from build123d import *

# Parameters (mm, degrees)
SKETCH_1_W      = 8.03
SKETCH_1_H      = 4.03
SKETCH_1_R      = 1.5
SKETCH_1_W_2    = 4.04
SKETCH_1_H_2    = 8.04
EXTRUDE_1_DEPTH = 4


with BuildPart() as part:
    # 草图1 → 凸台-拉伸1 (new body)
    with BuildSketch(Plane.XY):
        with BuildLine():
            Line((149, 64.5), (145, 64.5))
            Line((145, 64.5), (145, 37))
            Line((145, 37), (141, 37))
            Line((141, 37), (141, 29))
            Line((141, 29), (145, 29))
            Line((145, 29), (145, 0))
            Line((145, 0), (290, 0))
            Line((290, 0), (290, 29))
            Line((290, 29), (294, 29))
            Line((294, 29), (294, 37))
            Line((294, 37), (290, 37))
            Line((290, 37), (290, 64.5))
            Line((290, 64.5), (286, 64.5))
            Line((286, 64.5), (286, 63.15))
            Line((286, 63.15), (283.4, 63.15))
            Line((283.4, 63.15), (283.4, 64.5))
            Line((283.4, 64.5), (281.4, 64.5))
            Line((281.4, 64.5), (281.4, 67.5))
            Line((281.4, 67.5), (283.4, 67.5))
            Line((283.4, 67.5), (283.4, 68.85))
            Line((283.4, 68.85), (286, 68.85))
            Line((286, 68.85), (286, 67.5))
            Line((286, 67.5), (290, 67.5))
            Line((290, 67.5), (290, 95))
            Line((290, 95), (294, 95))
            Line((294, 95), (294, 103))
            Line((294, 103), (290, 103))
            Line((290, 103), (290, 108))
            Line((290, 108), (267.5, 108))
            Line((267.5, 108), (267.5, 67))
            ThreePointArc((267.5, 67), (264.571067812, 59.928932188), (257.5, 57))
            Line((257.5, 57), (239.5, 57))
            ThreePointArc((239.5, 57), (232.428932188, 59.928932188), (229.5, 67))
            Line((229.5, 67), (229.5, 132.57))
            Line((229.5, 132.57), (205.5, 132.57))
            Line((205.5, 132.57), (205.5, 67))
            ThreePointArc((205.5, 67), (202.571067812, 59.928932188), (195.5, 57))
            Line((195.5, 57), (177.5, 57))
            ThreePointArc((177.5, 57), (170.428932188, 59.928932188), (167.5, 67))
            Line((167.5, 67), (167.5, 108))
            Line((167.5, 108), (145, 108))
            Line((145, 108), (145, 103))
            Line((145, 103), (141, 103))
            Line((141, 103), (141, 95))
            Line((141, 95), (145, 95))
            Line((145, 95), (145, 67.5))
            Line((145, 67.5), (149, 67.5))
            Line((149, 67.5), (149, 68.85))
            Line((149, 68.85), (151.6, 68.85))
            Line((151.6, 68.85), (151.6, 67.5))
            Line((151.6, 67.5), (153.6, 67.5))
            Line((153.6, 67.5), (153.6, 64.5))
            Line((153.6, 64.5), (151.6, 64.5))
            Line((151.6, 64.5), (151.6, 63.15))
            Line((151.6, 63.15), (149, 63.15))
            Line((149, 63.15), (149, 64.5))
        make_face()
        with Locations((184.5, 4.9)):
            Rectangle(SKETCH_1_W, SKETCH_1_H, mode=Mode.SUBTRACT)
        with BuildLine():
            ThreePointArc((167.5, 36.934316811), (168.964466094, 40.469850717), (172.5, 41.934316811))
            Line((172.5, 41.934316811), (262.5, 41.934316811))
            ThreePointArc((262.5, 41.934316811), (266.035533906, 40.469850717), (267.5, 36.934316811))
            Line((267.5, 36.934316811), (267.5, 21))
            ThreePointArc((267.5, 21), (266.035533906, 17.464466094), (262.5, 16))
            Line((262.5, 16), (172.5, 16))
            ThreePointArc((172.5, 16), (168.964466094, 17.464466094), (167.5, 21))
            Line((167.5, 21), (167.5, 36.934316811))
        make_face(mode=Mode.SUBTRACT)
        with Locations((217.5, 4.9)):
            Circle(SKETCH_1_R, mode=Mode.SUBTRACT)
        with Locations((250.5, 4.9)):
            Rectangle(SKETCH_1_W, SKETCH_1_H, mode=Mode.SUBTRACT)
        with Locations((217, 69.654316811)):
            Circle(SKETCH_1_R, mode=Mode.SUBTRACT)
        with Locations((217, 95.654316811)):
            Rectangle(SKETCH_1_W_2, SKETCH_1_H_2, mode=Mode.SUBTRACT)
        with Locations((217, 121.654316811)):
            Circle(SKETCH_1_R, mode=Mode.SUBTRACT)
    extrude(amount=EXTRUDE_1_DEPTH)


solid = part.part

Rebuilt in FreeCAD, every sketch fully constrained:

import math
import FreeCAD as App
import Part
import Sketcher


def add_polygon(sketch, points):
    """Adds a closed chain of lines whose ends are joined by coincident constraints."""
    first, n = sketch.GeometryCount, len(points)
    for a, b in zip(points, points[1:] + points[:1]):
        sketch.addGeometry(Part.LineSegment(App.Vector(*a, 0), App.Vector(*b, 0)), False)
    for i in range(n):
        sketch.addConstraint(Sketcher.Constraint("Coincident", first + i, 2, first + (i + 1) % n, 1))

doc = App.newDocument("Part")
body = doc.addObject("PartDesign::Body", "Body")

# Sketch on XY plane
sketch1 = doc.addObject("Sketcher::SketchObject", "Sketch")
body.addObject(sketch1)
sketch1.AttachmentSupport = (doc.XY_Plane, [""])
sketch1.MapMode = "FlatFace"
sketch1.addGeometry(Part.LineSegment(App.Vector(149, 64.5, 0), App.Vector(145, 64.5, 0)), False)  # 0
sketch1.addGeometry(Part.LineSegment(App.Vector(145, 64.5, 0), App.Vector(145, 37, 0)), False)  # 1
sketch1.addGeometry(Part.LineSegment(App.Vector(145, 37, 0), App.Vector(141, 37, 0)), False)  # 2
sketch1.addGeometry(Part.LineSegment(App.Vector(141, 37, 0), App.Vector(141, 29, 0)), False)  # 3
sketch1.addGeometry(Part.LineSegment(App.Vector(141, 29, 0), App.Vector(145, 29, 0)), False)  # 4
sketch1.addGeometry(Part.LineSegment(App.Vector(145, 29, 0), App.Vector(145, 0, 0)), False)  # 5
sketch1.addGeometry(Part.LineSegment(App.Vector(145, 0, 0), App.Vector(290, 0, 0)), False)  # 6
sketch1.addGeometry(Part.LineSegment(App.Vector(290, 0, 0), App.Vector(290, 29, 0)), False)  # 7
sketch1.addGeometry(Part.LineSegment(App.Vector(290, 29, 0), App.Vector(294, 29, 0)), False)  # 8
sketch1.addGeometry(Part.LineSegment(App.Vector(294, 29, 0), App.Vector(294, 37, 0)), False)  # 9
sketch1.addGeometry(Part.LineSegment(App.Vector(294, 37, 0), App.Vector(290, 37, 0)), False)  # 10
sketch1.addGeometry(Part.LineSegment(App.Vector(290, 37, 0), App.Vector(290, 64.5, 0)), False)  # 11
sketch1.addGeometry(Part.LineSegment(App.Vector(290, 64.5, 0), App.Vector(286, 64.5, 0)), False)  # 12
sketch1.addGeometry(Part.LineSegment(App.Vector(286, 64.5, 0), App.Vector(286, 63.1, 0)), False)  # 13
sketch1.addGeometry(Part.LineSegment(App.Vector(286, 63.1, 0), App.Vector(283.4, 63.1, 0)), False)  # 14
sketch1.addGeometry(Part.LineSegment(App.Vector(283.4, 63.1, 0), App.Vector(283.4, 64.5, 0)), False)  # 15
sketch1.addGeometry(Part.LineSegment(App.Vector(283.4, 64.5, 0), App.Vector(281.4, 64.5, 0)), False)  # 16
sketch1.addGeometry(Part.LineSegment(App.Vector(281.4, 64.5, 0), App.Vector(281.4, 67.5, 0)), False)  # 17
sketch1.addGeometry(Part.LineSegment(App.Vector(281.4, 67.5, 0), App.Vector(283.4, 67.5, 0)), False)  # 18
sketch1.addGeometry(Part.LineSegment(App.Vector(283.4, 67.5, 0), App.Vector(283.4, 68.8, 0)), False)  # 19
sketch1.addGeometry(Part.LineSegment(App.Vector(283.4, 68.8, 0), App.Vector(286, 68.8, 0)), False)  # 20
sketch1.addGeometry(Part.LineSegment(App.Vector(286, 68.8, 0), App.Vector(286, 67.5, 0)), False)  # 21
sketch1.addGeometry(Part.LineSegment(App.Vector(286, 67.5, 0), App.Vector(290, 67.5, 0)), False)  # 22
sketch1.addGeometry(Part.LineSegment(App.Vector(290, 67.5, 0), App.Vector(290, 95, 0)), False)  # 23
sketch1.addGeometry(Part.LineSegment(App.Vector(290, 95, 0), App.Vector(294, 95, 0)), False)  # 24
sketch1.addGeometry(Part.LineSegment(App.Vector(294, 95, 0), App.Vector(294, 103, 0)), False)  # 25
sketch1.addGeometry(Part.LineSegment(App.Vector(294, 103, 0), App.Vector(290, 103, 0)), False)  # 26
sketch1.addGeometry(Part.LineSegment(App.Vector(290, 103, 0), App.Vector(290, 108, 0)), False)  # 27
sketch1.addGeometry(Part.LineSegment(App.Vector(290, 108, 0), App.Vector(267.5, 108, 0)), False)  # 28
sketch1.addGeometry(Part.LineSegment(App.Vector(267.5, 108, 0), App.Vector(267.5, 67, 0)), False)  # 29
sketch1.addGeometry(Part.ArcOfCircle(Part.Circle(App.Vector(257.5, 67, 0), App.Vector(0, 0, 1), 10), math.radians(-90), math.radians(0)), False)  # 30
sketch1.addGeometry(Part.LineSegment(App.Vector(257.5, 57, 0), App.Vector(239.5, 57, 0)), False)  # 31
sketch1.addGeometry(Part.ArcOfCircle(Part.Circle(App.Vector(239.5, 67, 0), App.Vector(0, 0, 1), 10), math.radians(180), math.radians(270)), False)  # 32
sketch1.addGeometry(Part.LineSegment(App.Vector(229.5, 67, 0), App.Vector(229.5, 132.6, 0)), False)  # 33
sketch1.addGeometry(Part.LineSegment(App.Vector(229.5, 132.6, 0), App.Vector(205.5, 132.6, 0)), False)  # 34
sketch1.addGeometry(Part.LineSegment(App.Vector(205.5, 132.6, 0), App.Vector(205.5, 67, 0)), False)  # 35
sketch1.addGeometry(Part.ArcOfCircle(Part.Circle(App.Vector(195.5, 67, 0), App.Vector(0, 0, 1), 10), math.radians(-90), math.radians(0)), False)  # 36
sketch1.addGeometry(Part.LineSegment(App.Vector(195.5, 57, 0), App.Vector(177.5, 57, 0)), False)  # 37
sketch1.addGeometry(Part.ArcOfCircle(Part.Circle(App.Vector(177.5, 67, 0), App.Vector(0, 0, 1), 10), math.radians(180), math.radians(270)), False)  # 38
sketch1.addGeometry(Part.LineSegment(App.Vector(167.5, 67, 0), App.Vector(167.5, 108, 0)), False)  # 39
sketch1.addGeometry(Part.LineSegment(App.Vector(167.5, 108, 0), App.Vector(145, 108, 0)), False)  # 40
sketch1.addGeometry(Part.LineSegment(App.Vector(145, 108, 0), App.Vector(145, 103, 0)), False)  # 41
sketch1.addGeometry(Part.LineSegment(App.Vector(145, 103, 0), App.Vector(141, 103, 0)), False)  # 42
sketch1.addGeometry(Part.LineSegment(App.Vector(141, 103, 0), App.Vector(141, 95, 0)), False)  # 43
sketch1.addGeometry(Part.LineSegment(App.Vector(141, 95, 0), App.Vector(145, 95, 0)), False)  # 44
sketch1.addGeometry(Part.LineSegment(App.Vector(145, 95, 0), App.Vector(145, 67.5, 0)), False)  # 45
sketch1.addGeometry(Part.LineSegment(App.Vector(145, 67.5, 0), App.Vector(149, 67.5, 0)), False)  # 46
sketch1.addGeometry(Part.LineSegment(App.Vector(149, 67.5, 0), App.Vector(149, 68.8, 0)), False)  # 47
sketch1.addGeometry(Part.LineSegment(App.Vector(149, 68.8, 0), App.Vector(151.6, 68.8, 0)), False)  # 48
sketch1.addGeometry(Part.LineSegment(App.Vector(151.6, 68.8, 0), App.Vector(151.6, 67.5, 0)), False)  # 49
sketch1.addGeometry(Part.LineSegment(App.Vector(151.6, 67.5, 0), App.Vector(153.6, 67.5, 0)), False)  # 50
sketch1.addGeometry(Part.LineSegment(App.Vector(153.6, 67.5, 0), App.Vector(153.6, 64.5, 0)), False)  # 51
sketch1.addGeometry(Part.LineSegment(App.Vector(153.6, 64.5, 0), App.Vector(151.6, 64.5, 0)), False)  # 52
sketch1.addGeometry(Part.LineSegment(App.Vector(151.6, 64.5, 0), App.Vector(151.6, 63.1, 0)), False)  # 53
sketch1.addGeometry(Part.LineSegment(App.Vector(151.6, 63.1, 0), App.Vector(149, 63.1, 0)), False)  # 54
sketch1.addGeometry(Part.LineSegment(App.Vector(149, 63.1, 0), App.Vector(149, 64.5, 0)), False)  # 55
add_polygon(sketch1, [(188.5, 2.9), (180.5, 2.9), (180.5, 6.9), (188.5, 6.9)])  # lines 56-59
sketch1.addGeometry(Part.Circle(App.Vector(217.5, 4.9, 0), App.Vector(0, 0, 1), 1.5), False)  # 60
sketch1.addGeometry(Part.LineSegment(App.Vector(167.5, 21, 0), App.Vector(167.5, 36.9, 0)), False)  # 61
sketch1.addGeometry(Part.ArcOfCircle(Part.Circle(App.Vector(172.5, 36.9, 0), App.Vector(0, 0, 1), 5), math.radians(90), math.radians(180)), False)  # 62
sketch1.addGeometry(Part.LineSegment(App.Vector(172.5, 41.9, 0), App.Vector(262.5, 41.9, 0)), False)  # 63
sketch1.addGeometry(Part.ArcOfCircle(Part.Circle(App.Vector(262.5, 36.9, 0), App.Vector(0, 0, 1), 5), math.radians(0), math.radians(90)), False)  # 64
sketch1.addGeometry(Part.LineSegment(App.Vector(267.5, 36.9, 0), App.Vector(267.5, 21, 0)), False)  # 65
sketch1.addGeometry(Part.ArcOfCircle(Part.Circle(App.Vector(262.5, 21, 0), App.Vector(0, 0, 1), 5), math.radians(-90), math.radians(0)), False)  # 66
sketch1.addGeometry(Part.LineSegment(App.Vector(262.5, 16, 0), App.Vector(172.5, 16, 0)), False)  # 67
sketch1.addGeometry(Part.ArcOfCircle(Part.Circle(App.Vector(172.5, 21, 0), App.Vector(0, 0, 1), 5), math.radians(180), math.radians(270)), False)  # 68
add_polygon(sketch1, [(254.5, 2.9), (246.5, 2.9), (246.5, 6.9), (254.5, 6.9)])  # lines 69-72
sketch1.addGeometry(Part.Circle(App.Vector(217, 69.7, 0), App.Vector(0, 0, 1), 1.5), False)  # 73
add_polygon(sketch1, [(219, 91.6), (215, 91.6), (215, 99.7), (219, 99.7)])  # lines 74-77
sketch1.addGeometry(Part.Circle(App.Vector(217, 121.7, 0), App.Vector(0, 0, 1), 1.5), False)  # 78
sketch1.addConstraint([
    Sketcher.Constraint("Coincident", 0, 2, 1, 1),
    Sketcher.Constraint("Coincident", 1, 2, 2, 1),
    Sketcher.Constraint("Coincident", 2, 2, 3, 1),
    Sketcher.Constraint("Coincident", 3, 2, 4, 1),
    Sketcher.Constraint("Coincident", 4, 2, 5, 1),
    Sketcher.Constraint("Coincident", 5, 2, 6, 1),
    Sketcher.Constraint("Coincident", 6, 2, 7, 1),
    Sketcher.Constraint("Coincident", 7, 2, 8, 1),
    Sketcher.Constraint("Coincident", 8, 2, 9, 1),
    Sketcher.Constraint("Coincident", 9, 2, 10, 1),
    Sketcher.Constraint("Coincident", 10, 2, 11, 1),
    Sketcher.Constraint("Coincident", 11, 2, 12, 1),
    Sketcher.Constraint("Coincident", 12, 2, 13, 1),
    Sketcher.Constraint("Coincident", 13, 2, 14, 1),
    Sketcher.Constraint("Coincident", 14, 2, 15, 1),
    Sketcher.Constraint("Coincident", 15, 2, 16, 1),
    Sketcher.Constraint("Coincident", 16, 2, 17, 1),
    Sketcher.Constraint("Coincident", 17, 2, 18, 1),
    Sketcher.Constraint("Coincident", 18, 2, 19, 1),
    Sketcher.Constraint("Coincident", 19, 2, 20, 1),
    Sketcher.Constraint("Coincident", 20, 2, 21, 1),
    Sketcher.Constraint("Coincident", 21, 2, 22, 1),
    Sketcher.Constraint("Coincident", 22, 2, 23, 1),
    Sketcher.Constraint("Coincident", 23, 2, 24, 1),
    Sketcher.Constraint("Coincident", 24, 2, 25, 1),
    Sketcher.Constraint("Coincident", 25, 2, 26, 1),
    Sketcher.Constraint("Coincident", 26, 2, 27, 1),
    Sketcher.Constraint("Coincident", 27, 2, 28, 1),
    Sketcher.Constraint("Coincident", 28, 2, 29, 1),
    Sketcher.Constraint("Tangent", 29, 2, 30, 2),
    Sketcher.Constraint("Tangent", 30, 1, 31, 1),
    Sketcher.Constraint("Tangent", 31, 2, 32, 2),
    Sketcher.Constraint("Tangent", 32, 1, 33, 1),
    Sketcher.Constraint("Coincident", 33, 2, 34, 1),
    Sketcher.Constraint("Coincident", 34, 2, 35, 1),
    Sketcher.Constraint("Tangent", 35, 2, 36, 2),
    Sketcher.Constraint("Tangent", 36, 1, 37, 1),
    Sketcher.Constraint("Tangent", 37, 2, 38, 2),
    Sketcher.Constraint("Tangent", 38, 1, 39, 1),
    Sketcher.Constraint("Coincident", 39, 2, 40, 1),
    Sketcher.Constraint("Coincident", 40, 2, 41, 1),
    Sketcher.Constraint("Coincident", 41, 2, 42, 1),
    Sketcher.Constraint("Coincident", 42, 2, 43, 1),
    Sketcher.Constraint("Coincident", 43, 2, 44, 1),
    Sketcher.Constraint("Coincident", 44, 2, 45, 1),
    Sketcher.Constraint("Coincident", 45, 2, 46, 1),
    Sketcher.Constraint("Coincident", 46, 2, 47, 1),
    Sketcher.Constraint("Coincident", 47, 2, 48, 1),
    Sketcher.Constraint("Coincident", 48, 2, 49, 1),
    Sketcher.Constraint("Coincident", 49, 2, 50, 1),
    Sketcher.Constraint("Coincident", 50, 2, 51, 1),
    Sketcher.Constraint("Coincident", 51, 2, 52, 1),
    Sketcher.Constraint("Coincident", 52, 2, 53, 1),
    Sketcher.Constraint("Coincident", 53, 2, 54, 1),
    Sketcher.Constraint("Coincident", 54, 2, 55, 1),
    Sketcher.Constraint("Coincident", 55, 2, 0, 1),
    Sketcher.Constraint("Tangent", 61, 2, 62, 2),
    Sketcher.Constraint("Tangent", 62, 1, 63, 1),
    Sketcher.Constraint("Tangent", 63, 2, 64, 2),
    Sketcher.Constraint("Tangent", 64, 1, 65, 1),
    Sketcher.Constraint("Tangent", 65, 2, 66, 2),
    Sketcher.Constraint("Tangent", 66, 1, 67, 1),
    Sketcher.Constraint("Tangent", 67, 2, 68, 2),
    Sketcher.Constraint("Tangent", 68, 1, 61, 1),
    Sketcher.Constraint("Horizontal", 0),
    Sketcher.Constraint("Vertical", 1),
    Sketcher.Constraint("Horizontal", 2),
    Sketcher.Constraint("Vertical", 3),
    Sketcher.Constraint("Horizontal", 4),
    Sketcher.Constraint("Vertical", 5),
    Sketcher.Constraint("Horizontal", 6),
    Sketcher.Constraint("Vertical", 7),
    Sketcher.Constraint("Horizontal", 8),
    Sketcher.Constraint("Vertical", 9),
    Sketcher.Constraint("Horizontal", 10),
    Sketcher.Constraint("Vertical", 11),
    Sketcher.Constraint("Horizontal", 12),
    Sketcher.Constraint("Vertical", 13),
    Sketcher.Constraint("Horizontal", 14),
    Sketcher.Constraint("Vertical", 15),
    Sketcher.Constraint("Horizontal", 16),
    Sketcher.Constraint("Vertical", 17),
    Sketcher.Constraint("Horizontal", 18),
    Sketcher.Constraint("Vertical", 19),
    Sketcher.Constraint("Horizontal", 20),
    Sketcher.Constraint("Vertical", 21),
    Sketcher.Constraint("Horizontal", 22),
    Sketcher.Constraint("Vertical", 23),
    Sketcher.Constraint("Horizontal", 24),
    Sketcher.Constraint("Vertical", 25),
    Sketcher.Constraint("Horizontal", 26),
    Sketcher.Constraint("Vertical", 27),
    Sketcher.Constraint("Horizontal", 28),
    Sketcher.Constraint("Vertical", 29),
    Sketcher.Constraint("Horizontal", 31),
    Sketcher.Constraint("Vertical", 33),
    Sketcher.Constraint("Horizontal", 34),
    Sketcher.Constraint("Vertical", 35),
    Sketcher.Constraint("Horizontal", 37),
    Sketcher.Constraint("Vertical", 39),
    Sketcher.Constraint("Horizontal", 40),
    Sketcher.Constraint("Vertical", 41),
    Sketcher.Constraint("Horizontal", 42),
    Sketcher.Constraint("Vertical", 43),
    Sketcher.Constraint("Horizontal", 44),
    Sketcher.Constraint("Vertical", 45),
    Sketcher.Constraint("Horizontal", 46),
    Sketcher.Constraint("Vertical", 47),
    Sketcher.Constraint("Horizontal", 48),
    Sketcher.Constraint("Vertical", 49),
    Sketcher.Constraint("Horizontal", 50),
    Sketcher.Constraint("Vertical", 51),
    Sketcher.Constraint("Horizontal", 52),
    Sketcher.Constraint("Vertical", 53),
    Sketcher.Constraint("Horizontal", 54),
    Sketcher.Constraint("Vertical", 55),
    Sketcher.Constraint("Horizontal", 56),
    Sketcher.Constraint("Vertical", 57),
    Sketcher.Constraint("Horizontal", 58),
    Sketcher.Constraint("Vertical", 59),
    Sketcher.Constraint("Vertical", 61),
    Sketcher.Constraint("Horizontal", 63),
    Sketcher.Constraint("Vertical", 65),
    Sketcher.Constraint("Horizontal", 67),
    Sketcher.Constraint("Horizontal", 69),
    Sketcher.Constraint("Vertical", 70),
    Sketcher.Constraint("Horizontal", 71),
    Sketcher.Constraint("Vertical", 72),
    Sketcher.Constraint("Horizontal", 74),
    Sketcher.Constraint("Vertical", 75),
    Sketcher.Constraint("Horizontal", 76),
    Sketcher.Constraint("Vertical", 77),
    Sketcher.Constraint("Equal", 30, 32),
    Sketcher.Constraint("Equal", 32, 36),
    Sketcher.Constraint("Equal", 36, 38),
    Sketcher.Constraint("Equal", 62, 64),
    Sketcher.Constraint("Equal", 64, 66),
    Sketcher.Constraint("Equal", 66, 68),
    Sketcher.Constraint("Equal", 60, 73),
    Sketcher.Constraint("Equal", 73, 78),
    Sketcher.Constraint("PointOnObject", 5, 2, -1),
    Sketcher.Constraint("Horizontal", 32, 3, 36, 3),
    Sketcher.Constraint("Horizontal", 4, 2, 7, 2),
    Sketcher.Constraint("Horizontal", 2, 2, 9, 2),
    Sketcher.Constraint("Horizontal", 0, 2, 11, 2),
    Sketcher.Constraint("Horizontal", 12, 2, 15, 2),
    Sketcher.Constraint("Horizontal", 18, 2, 21, 2),
    Sketcher.Constraint("Horizontal", 28, 2, 39, 2),
    Sketcher.Constraint("Horizontal", 26, 2, 41, 2),
    Sketcher.Constraint("Horizontal", 24, 2, 43, 2),
    Sketcher.Constraint("Horizontal", 22, 2, 45, 2),
    Sketcher.Constraint("Horizontal", 20, 2, 47, 2),
    Sketcher.Constraint("Horizontal", 46, 2, 49, 2),
    Sketcher.Constraint("Horizontal", 16, 2, 51, 2),
    Sketcher.Constraint("Horizontal", 14, 2, 53, 2),
    Sketcher.Constraint("Horizontal", 59, 2, 69, 2),
    Sketcher.Constraint("Horizontal", 58, 2, 70, 2),
    Sketcher.Constraint("Vertical", 73, 3, 78, 3),
    Sketcher.Constraint("Vertical", 1, 2, 4, 2),
    Sketcher.Constraint("Vertical", 7, 2, 10, 2),
    Sketcher.Constraint("Vertical", 15, 2, 18, 2),
    Sketcher.Constraint("Vertical", 13, 2, 20, 2),
    Sketcher.Constraint("Vertical", 11, 2, 22, 2),
    Sketcher.Constraint("Vertical", 9, 2, 24, 2),
    Sketcher.Constraint("Vertical", 23, 2, 26, 2),
    Sketcher.Constraint("Vertical", 5, 2, 40, 2),
    Sketcher.Constraint("Vertical", 3, 2, 42, 2),
    Sketcher.Constraint("Vertical", 41, 2, 44, 2),
    Sketcher.Constraint("Vertical", 49, 2, 52, 2),
    Sketcher.Constraint("Vertical", 47, 2, 54, 2),
    Sketcher.Constraint("Vertical", 39, 2, 61, 2),
    Sketcher.Constraint("Vertical", 29, 2, 64, 1),
    Sketcher.Constraint("Equal", 0, 2),
    Sketcher.Constraint("Equal", 4, 8),
    Sketcher.Constraint("Equal", 10, 12),
    Sketcher.Constraint("Equal", 31, 37),
    Sketcher.Constraint("Equal", 28, 40),
    Sketcher.Constraint("Equal", 20, 48),
    Sketcher.Constraint("Equal", 18, 50),
    Sketcher.Constraint("Equal", 58, 69),
    Sketcher.Constraint("Equal", 15, 19),
    Sketcher.Constraint("Equal", 11, 23),
    Sketcher.Constraint("Equal", 9, 25),
    Sketcher.Constraint("Diameter", 60, 3.0),
    Sketcher.Constraint("Radius", 30, 10.0),
    Sketcher.Constraint("Radius", 62, 5.0),
    Sketcher.Constraint("DistanceX", 0, 2, 0, 1, 4.0),
    Sketcher.Constraint("DistanceX", 6, 1, 6, 2, 145.0),
    Sketcher.Constraint("DistanceX", 16, 2, 16, 1, 2.0),
    Sketcher.Constraint("DistanceX", 31, 2, 31, 1, 18.0),
    Sketcher.Constraint("DistanceX", 34, 2, 34, 1, 24.0),
    Sketcher.Constraint("DistanceY", 3, 2, 3, 1, 8.0),
    Sketcher.Constraint("DistanceY", 5, 2, 5, 1, 29.0),
    Sketcher.Constraint("DistanceY", 17, 1, 17, 2, 3.0),
    Sketcher.Constraint("DistanceY", 27, 1, 27, 2, 5.0),
    Sketcher.Constraint("DistanceY", 29, 2, 29, 1, 41.0),
    Sketcher.Constraint("DistanceX", 14, 2, 14, 1, 2.6),
    Sketcher.Constraint("DistanceY", 1, 2, 1, 1, 27.5),
    Sketcher.Constraint("DistanceY", -1, 1, 66, 3, 21.0),
    Sketcher.Constraint("DistanceX", -1, 1, 73, 3, 217.0),
    Sketcher.Constraint("DistanceX", -1, 1, 0, 2, 145.0),
    Sketcher.Constraint("DistanceX", 56, 2, 56, 1, 8.03),
    Sketcher.Constraint("DistanceX", 74, 2, 74, 1, 4.04),
    Sketcher.Constraint("DistanceY", 13, 2, 13, 1, 1.35),
    Sketcher.Constraint("DistanceY", 33, 1, 33, 2, 65.57),
    Sketcher.Constraint("DistanceY", 57, 1, 57, 2, 4.03),
    Sketcher.Constraint("DistanceY", 75, 1, 75, 2, 8.04),
    Sketcher.Constraint("DistanceX", -1, 1, 60, 3, 217.5),
    Sketcher.Constraint("DistanceY", -1, 1, 60, 3, 4.9),
    Sketcher.Constraint("DistanceX", -1, 1, 74, 2, 214.98),
    Sketcher.Constraint("DistanceX", -1, 1, 56, 2, 180.485),
    Sketcher.Constraint("DistanceY", -1, 1, 56, 2, 2.885),
    Sketcher.Constraint("DistanceX", -1, 1, 69, 2, 246.485),
    Sketcher.Constraint("DistanceY", 61, 1, 61, 2, 15.934317),
    Sketcher.Constraint("DistanceY", -1, 1, 73, 3, 69.654317),
    Sketcher.Constraint("DistanceY", -1, 1, 78, 3, 121.654317),
    Sketcher.Constraint("DistanceY", -1, 1, 74, 2, 91.634317),
])
pad1 = doc.addObject("PartDesign::Pad", "Pad")
body.addObject(pad1)
pad1.Profile = sketch1
pad1.Length = 4

doc.recompute()
